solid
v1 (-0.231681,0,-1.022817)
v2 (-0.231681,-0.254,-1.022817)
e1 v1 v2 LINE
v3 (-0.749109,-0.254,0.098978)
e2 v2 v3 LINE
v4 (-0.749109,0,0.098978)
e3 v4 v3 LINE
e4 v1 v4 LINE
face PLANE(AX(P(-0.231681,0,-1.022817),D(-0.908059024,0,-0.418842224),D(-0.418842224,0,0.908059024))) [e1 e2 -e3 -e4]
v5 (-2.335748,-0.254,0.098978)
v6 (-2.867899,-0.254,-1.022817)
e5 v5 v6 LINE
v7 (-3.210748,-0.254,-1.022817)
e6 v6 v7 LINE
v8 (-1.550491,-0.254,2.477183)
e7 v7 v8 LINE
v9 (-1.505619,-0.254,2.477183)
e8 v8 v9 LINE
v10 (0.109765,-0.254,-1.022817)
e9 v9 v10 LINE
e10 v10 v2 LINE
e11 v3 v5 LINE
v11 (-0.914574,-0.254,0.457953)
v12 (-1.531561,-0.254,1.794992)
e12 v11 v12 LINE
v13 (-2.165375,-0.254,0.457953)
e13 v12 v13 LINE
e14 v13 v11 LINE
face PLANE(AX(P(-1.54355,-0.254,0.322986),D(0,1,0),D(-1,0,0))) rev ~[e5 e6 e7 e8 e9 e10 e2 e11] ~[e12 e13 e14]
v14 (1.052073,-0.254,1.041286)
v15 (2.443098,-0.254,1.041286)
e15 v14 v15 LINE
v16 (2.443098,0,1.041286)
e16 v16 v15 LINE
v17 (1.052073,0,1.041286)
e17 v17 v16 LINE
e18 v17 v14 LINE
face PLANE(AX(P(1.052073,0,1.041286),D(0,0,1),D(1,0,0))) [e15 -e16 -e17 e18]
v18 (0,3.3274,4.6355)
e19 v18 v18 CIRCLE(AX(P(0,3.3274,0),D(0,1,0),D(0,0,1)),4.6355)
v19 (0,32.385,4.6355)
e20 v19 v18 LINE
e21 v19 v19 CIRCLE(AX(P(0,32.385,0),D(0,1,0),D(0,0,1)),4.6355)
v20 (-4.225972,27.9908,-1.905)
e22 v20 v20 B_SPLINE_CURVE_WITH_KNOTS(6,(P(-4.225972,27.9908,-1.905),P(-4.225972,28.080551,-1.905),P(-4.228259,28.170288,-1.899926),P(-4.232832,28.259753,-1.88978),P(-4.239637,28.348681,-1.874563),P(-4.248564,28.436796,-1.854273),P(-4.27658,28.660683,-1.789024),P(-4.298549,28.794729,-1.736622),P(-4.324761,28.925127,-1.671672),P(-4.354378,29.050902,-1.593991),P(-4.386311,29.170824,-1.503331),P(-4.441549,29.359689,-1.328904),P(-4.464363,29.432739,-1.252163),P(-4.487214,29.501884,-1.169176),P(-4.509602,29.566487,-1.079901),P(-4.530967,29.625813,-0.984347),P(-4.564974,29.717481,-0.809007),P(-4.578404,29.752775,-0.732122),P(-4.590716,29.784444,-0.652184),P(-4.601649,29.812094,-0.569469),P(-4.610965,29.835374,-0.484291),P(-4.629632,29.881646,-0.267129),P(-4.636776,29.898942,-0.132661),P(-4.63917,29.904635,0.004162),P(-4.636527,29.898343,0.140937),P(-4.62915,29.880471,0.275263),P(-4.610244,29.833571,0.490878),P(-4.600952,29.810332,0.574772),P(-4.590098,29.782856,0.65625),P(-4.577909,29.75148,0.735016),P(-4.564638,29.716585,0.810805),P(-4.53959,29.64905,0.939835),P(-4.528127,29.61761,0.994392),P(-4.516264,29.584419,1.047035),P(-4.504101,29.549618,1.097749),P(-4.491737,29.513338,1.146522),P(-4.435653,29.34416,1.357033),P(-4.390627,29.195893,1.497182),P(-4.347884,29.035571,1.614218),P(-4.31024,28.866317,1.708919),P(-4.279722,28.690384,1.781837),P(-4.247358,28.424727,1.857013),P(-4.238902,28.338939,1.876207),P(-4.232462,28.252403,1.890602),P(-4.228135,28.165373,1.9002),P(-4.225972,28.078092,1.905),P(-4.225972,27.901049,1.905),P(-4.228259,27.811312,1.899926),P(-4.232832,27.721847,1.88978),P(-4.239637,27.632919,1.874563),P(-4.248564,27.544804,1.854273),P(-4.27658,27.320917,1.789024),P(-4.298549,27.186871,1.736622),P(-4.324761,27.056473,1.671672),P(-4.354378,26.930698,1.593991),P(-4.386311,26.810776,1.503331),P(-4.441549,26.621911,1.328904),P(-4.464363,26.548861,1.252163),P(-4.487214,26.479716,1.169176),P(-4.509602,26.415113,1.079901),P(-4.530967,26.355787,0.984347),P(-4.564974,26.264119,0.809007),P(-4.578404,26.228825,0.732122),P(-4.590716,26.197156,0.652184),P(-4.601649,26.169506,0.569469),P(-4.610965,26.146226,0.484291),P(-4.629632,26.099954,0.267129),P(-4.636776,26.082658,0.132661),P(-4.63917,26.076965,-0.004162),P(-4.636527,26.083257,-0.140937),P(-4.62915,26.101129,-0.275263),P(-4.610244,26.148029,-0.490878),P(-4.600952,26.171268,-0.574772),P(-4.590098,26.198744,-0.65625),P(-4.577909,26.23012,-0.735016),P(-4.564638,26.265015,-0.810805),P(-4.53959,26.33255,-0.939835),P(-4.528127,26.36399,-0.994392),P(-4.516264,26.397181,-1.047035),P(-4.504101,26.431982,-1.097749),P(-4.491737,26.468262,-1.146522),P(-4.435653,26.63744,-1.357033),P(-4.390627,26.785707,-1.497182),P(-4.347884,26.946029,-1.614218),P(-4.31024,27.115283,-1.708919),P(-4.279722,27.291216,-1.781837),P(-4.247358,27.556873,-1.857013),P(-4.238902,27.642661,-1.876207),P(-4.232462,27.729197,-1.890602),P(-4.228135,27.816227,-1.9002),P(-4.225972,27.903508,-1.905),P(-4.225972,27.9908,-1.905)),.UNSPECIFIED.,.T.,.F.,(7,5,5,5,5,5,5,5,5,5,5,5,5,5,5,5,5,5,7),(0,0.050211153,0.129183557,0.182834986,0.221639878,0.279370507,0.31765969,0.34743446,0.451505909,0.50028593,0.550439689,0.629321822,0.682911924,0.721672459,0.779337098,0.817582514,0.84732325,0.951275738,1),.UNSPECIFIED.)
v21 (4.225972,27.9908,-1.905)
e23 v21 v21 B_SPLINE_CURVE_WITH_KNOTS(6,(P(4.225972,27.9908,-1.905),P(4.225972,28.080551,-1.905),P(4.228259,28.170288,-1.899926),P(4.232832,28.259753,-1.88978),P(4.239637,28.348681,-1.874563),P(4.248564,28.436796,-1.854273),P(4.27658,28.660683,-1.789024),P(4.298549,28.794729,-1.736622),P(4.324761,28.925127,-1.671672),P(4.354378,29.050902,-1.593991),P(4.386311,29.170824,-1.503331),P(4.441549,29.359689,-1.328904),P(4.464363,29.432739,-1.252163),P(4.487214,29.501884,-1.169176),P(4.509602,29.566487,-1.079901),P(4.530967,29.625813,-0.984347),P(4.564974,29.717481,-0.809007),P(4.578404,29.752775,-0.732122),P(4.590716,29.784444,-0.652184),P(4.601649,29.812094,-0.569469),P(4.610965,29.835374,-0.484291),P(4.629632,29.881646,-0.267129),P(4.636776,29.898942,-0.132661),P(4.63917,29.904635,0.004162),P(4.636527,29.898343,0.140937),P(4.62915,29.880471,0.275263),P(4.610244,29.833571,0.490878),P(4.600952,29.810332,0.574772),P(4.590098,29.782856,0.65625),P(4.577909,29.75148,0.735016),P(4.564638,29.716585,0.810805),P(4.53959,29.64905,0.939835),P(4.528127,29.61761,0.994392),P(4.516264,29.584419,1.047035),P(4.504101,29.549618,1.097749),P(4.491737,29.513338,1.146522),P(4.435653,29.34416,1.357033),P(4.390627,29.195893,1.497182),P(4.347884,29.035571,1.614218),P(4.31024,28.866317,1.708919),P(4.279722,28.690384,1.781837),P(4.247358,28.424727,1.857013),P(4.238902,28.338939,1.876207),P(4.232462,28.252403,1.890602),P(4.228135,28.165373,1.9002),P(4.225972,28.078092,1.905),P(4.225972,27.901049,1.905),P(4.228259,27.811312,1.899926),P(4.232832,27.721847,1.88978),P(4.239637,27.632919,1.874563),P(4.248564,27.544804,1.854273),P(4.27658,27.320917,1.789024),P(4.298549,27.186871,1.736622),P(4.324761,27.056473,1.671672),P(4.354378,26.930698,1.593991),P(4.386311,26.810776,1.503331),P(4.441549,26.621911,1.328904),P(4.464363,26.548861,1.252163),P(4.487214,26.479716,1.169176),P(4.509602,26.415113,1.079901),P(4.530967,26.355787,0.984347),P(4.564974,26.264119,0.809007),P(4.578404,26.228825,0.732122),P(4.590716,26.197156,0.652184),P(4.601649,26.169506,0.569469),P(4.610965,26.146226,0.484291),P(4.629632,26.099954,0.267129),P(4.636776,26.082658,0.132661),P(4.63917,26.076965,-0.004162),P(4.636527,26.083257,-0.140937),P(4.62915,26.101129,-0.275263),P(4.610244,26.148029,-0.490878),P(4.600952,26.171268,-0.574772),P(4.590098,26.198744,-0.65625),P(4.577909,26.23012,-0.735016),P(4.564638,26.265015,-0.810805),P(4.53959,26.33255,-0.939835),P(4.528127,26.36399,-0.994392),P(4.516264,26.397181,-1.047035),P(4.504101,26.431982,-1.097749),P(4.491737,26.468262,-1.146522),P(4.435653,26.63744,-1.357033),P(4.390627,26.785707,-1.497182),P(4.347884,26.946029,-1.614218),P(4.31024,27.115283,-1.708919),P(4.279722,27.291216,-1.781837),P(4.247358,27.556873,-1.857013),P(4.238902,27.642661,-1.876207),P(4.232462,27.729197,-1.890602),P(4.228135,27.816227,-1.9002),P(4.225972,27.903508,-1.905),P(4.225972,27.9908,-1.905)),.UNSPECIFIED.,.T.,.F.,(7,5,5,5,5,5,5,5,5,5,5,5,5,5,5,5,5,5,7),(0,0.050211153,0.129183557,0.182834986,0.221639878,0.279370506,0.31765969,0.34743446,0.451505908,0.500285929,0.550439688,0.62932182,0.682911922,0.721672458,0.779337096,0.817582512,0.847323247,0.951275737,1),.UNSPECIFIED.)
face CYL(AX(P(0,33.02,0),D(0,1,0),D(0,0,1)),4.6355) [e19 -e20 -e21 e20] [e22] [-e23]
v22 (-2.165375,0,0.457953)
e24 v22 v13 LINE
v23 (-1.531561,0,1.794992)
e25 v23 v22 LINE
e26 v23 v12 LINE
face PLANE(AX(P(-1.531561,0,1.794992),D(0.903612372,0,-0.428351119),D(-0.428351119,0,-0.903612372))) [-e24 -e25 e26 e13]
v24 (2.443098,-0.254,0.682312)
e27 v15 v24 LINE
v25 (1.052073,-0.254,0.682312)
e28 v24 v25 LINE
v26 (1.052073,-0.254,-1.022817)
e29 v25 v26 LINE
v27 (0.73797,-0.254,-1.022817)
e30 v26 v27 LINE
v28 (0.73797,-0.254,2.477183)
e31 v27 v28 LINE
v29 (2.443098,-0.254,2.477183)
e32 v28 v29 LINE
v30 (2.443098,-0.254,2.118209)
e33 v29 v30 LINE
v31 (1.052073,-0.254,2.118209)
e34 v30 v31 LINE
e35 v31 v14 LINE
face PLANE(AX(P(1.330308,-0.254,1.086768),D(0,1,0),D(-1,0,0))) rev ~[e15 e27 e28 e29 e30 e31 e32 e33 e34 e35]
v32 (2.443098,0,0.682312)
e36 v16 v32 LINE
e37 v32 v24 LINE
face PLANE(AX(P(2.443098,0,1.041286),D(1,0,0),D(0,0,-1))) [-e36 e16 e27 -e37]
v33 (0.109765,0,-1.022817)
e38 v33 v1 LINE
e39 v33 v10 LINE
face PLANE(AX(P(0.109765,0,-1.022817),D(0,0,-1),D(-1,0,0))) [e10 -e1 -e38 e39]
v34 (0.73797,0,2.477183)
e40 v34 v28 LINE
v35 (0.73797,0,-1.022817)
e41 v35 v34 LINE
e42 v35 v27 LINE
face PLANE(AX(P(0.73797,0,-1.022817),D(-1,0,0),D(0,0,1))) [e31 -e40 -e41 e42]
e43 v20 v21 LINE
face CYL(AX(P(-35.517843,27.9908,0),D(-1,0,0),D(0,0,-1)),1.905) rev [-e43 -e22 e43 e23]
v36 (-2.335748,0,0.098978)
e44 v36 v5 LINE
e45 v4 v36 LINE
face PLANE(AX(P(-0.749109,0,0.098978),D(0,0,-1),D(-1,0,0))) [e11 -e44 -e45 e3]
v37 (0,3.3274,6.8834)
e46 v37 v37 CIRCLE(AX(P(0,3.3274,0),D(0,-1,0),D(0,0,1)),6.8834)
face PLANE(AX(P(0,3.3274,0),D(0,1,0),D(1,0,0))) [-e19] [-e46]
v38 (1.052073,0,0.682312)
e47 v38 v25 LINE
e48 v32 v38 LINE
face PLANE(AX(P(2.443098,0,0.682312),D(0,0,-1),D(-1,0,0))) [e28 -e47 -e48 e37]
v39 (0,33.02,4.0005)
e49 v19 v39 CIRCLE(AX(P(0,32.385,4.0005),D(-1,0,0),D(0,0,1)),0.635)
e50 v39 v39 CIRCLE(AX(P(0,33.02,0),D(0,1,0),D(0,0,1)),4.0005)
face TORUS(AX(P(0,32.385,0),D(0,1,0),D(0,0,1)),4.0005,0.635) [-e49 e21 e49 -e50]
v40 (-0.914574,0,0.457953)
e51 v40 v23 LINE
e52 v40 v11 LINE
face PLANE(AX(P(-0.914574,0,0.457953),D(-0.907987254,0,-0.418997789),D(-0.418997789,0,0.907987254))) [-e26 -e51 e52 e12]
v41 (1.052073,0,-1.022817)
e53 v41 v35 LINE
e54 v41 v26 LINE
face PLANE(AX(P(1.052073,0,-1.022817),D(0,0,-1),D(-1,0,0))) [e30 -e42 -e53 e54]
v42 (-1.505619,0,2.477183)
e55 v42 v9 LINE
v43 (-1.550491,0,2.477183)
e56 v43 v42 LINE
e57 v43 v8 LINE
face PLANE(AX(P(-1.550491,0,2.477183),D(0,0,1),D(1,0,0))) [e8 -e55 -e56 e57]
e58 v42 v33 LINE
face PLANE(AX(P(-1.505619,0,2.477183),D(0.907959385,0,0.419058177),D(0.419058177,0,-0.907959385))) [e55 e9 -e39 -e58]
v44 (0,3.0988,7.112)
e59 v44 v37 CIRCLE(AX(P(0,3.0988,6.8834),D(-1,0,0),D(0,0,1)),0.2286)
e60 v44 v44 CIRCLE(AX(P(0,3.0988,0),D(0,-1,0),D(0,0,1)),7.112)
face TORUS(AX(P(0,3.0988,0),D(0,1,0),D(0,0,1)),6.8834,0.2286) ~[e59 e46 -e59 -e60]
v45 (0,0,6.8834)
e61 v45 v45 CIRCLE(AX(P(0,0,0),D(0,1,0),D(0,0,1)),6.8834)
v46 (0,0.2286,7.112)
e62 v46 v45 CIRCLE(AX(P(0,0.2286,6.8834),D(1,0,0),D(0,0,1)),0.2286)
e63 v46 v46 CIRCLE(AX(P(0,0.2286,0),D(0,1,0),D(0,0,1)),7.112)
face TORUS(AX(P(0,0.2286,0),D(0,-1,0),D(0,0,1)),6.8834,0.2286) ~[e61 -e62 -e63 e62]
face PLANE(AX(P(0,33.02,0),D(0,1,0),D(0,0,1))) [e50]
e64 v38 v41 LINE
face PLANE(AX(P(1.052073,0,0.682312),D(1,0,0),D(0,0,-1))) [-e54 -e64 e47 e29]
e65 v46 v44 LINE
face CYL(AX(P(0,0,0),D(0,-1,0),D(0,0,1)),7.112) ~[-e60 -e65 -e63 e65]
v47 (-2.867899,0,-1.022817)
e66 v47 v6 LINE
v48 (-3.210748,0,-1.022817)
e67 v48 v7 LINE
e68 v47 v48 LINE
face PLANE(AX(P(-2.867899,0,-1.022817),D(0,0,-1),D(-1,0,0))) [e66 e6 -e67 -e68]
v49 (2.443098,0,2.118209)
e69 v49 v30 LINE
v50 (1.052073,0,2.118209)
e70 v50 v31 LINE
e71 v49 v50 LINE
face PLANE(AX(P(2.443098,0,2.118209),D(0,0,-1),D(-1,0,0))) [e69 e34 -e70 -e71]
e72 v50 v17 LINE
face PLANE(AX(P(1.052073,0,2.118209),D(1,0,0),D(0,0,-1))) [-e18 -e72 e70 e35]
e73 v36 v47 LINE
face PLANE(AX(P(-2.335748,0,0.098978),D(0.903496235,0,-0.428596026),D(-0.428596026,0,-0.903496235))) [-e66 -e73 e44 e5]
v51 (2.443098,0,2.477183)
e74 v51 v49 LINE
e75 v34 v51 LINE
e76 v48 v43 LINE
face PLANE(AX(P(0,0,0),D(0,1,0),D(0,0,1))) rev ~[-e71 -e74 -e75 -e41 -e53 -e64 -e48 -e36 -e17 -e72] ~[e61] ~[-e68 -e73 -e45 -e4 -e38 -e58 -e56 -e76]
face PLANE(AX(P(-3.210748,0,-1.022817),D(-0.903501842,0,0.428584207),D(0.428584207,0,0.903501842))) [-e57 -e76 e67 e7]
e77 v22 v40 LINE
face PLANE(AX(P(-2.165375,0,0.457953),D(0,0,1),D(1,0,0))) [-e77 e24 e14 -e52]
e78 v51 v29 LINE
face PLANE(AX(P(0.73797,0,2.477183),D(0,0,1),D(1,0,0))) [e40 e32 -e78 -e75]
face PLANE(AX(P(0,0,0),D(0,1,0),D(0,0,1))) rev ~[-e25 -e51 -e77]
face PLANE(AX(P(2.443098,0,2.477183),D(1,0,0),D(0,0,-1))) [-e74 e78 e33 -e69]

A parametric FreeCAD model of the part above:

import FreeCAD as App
import Part
import Sketcher
from FreeCAD import Vector
Q = App.Units.Quantity


def edges_at(feature, points):
    """Names of the edges that pass closest to the given points."""
    edges = feature.Shape.Edges
    near = lambda p: min(range(len(edges)), key=lambda i: edges[i].distToShape(Part.Vertex(*p))[0])
    return sorted({f"Edge{near(p) + 1}" for p in points})


def add_polygon(sketch, points):
    """Adds a closed chain of lines whose ends are joined by coincident constraints."""
    first, n = sketch.GeometryCount, len(points)
    for a, b in zip(points, points[1:] + points[:1]):
        sketch.addGeometry(Part.LineSegment(App.Vector(*a, 0), App.Vector(*b, 0)), False)
    for i in range(n):
        sketch.addConstraint(Sketcher.Constraint("Coincident", first + i, 2, first + (i + 1) % n, 1))

doc = App.newDocument("Part")
body = doc.addObject("PartDesign::Body", "Body")

sketch1 = body.newObject("Sketcher::SketchObject", "Sketch")
sketch1.AttachmentSupport = (doc.getObject("XZ_Plane"), [""])
sketch1.MapMode = "FlatFace"
sketch1.addGeometry(Part.Circle(Vector(0, 0, 0), Vector(0, 0, 1), 7.112), False)
sketch1.addConstraint([
    Sketcher.Constraint("Coincident", 0, 3, -1, 1),
    Sketcher.Constraint("Diameter", 0, Q("0.56 in")),
])
pad1 = body.newObject("PartDesign::Pad", "Pad")
pad1.Profile = sketch1
pad1.Length = Q("1.3 in")
pad1.Reversed = True

sketch2 = body.newObject("Sketcher::SketchObject", "Sketch001")
sketch2.AttachmentSupport = (doc.getObject("XZ_Plane"), [""])
sketch2.MapMode = "FlatFace"
sketch2.AttachmentOffset = App.Placement(Vector(0, 0, -1.3 * 25.4), App.Rotation())
add_polygon(sketch2, [(-11.978, -11.978), (-11.978, 11.978), (11.978, 11.978), (11.978, -11.978)])
sketch2.addGeometry(Part.Circle(Vector(0, 0, 0), Vector(0, 0, 1), 4.6355), False)
sketch2.addConstraint([
    Sketcher.Constraint("Vertical", 0),
    Sketcher.Constraint("Horizontal", 1),
    Sketcher.Constraint("Vertical", 2),
    Sketcher.Constraint("Horizontal", 3),
    Sketcher.Constraint("Coincident", 4, 3, -1, 1),
    Sketcher.Constraint("Symmetric", 0, 2, 2, 2, -1, 1),
    Sketcher.Constraint("Equal", 3, 0),
    Sketcher.Constraint("Diameter", 4, Q("0.365 in")),
    Sketcher.Constraint("DistanceX", 1, 1, 1, 2, 23.956),
])
pocket1 = body.newObject("PartDesign::Pocket", "Pocket")
pocket1.Profile = sketch2
pocket1.Length = Q("1.169 in")
pocket1.Reversed = True

sketch3 = body.newObject("Sketcher::SketchObject", "Sketch002")
sketch3.AttachmentSupport = (doc.getObject("YZ_Plane"), [""])
sketch3.MapMode = "FlatFace"
sketch3.addGeometry(Part.Circle(Vector(27.9908, 0, 0), Vector(0, 0, 1), 1.905), False)
sketch3.addConstraint([
    Sketcher.Constraint("PointOnObject", 0, 3, -1),
    Sketcher.Constraint("Diameter", 0, Q("0.15 in")),
    Sketcher.Constraint("DistanceX", -1, 1, 0, 3, Q("1.102 in")),
])
pocket2 = body.newObject("PartDesign::Pocket", "Pocket001")
pocket2.Profile = sketch3
pocket2.Type = "ThroughAll"
pocket2.Midplane = True

sketch4 = body.newObject("Sketcher::SketchObject", "Sketch003")
sketch4.AttachmentSupport = (doc.getObject("XZ_Plane"), [""])
sketch4.MapMode = "FlatFace"
add_polygon(sketch4, [(0.109765, -1.022817), (-1.505619, 2.477183), (-1.550491, 2.477183), (-3.210748, -1.022817), (-2.867899, -1.022817), (-2.335748, 0.098978), (-0.749109, 0.098978), (-0.231681, -1.022817)])
add_polygon(sketch4, [(-1.531561, 1.794992), (-0.914574, 0.457953), (-2.165375, 0.457953)])
add_polygon(sketch4, [(2.443098, 2.477183), (0.73797, 2.477183), (0.73797, -1.022817), (1.052073, -1.022817), (1.052073, 0.682312), (2.443098, 0.682312), (2.443098, 1.041286), (1.052073, 1.041286), (1.052073, 2.118209), (2.443098, 2.118209)])
sketch4.addConstraint([
    Sketcher.Constraint("Horizontal", 1),
    Sketcher.Constraint("Horizontal", 3),
    Sketcher.Constraint("Horizontal", 5),
    Sketcher.Constraint("Horizontal", 7),
    Sketcher.Constraint("Horizontal", 9),
    Sketcher.Constraint("Horizontal", 11),
    Sketcher.Constraint("Vertical", 12),
    Sketcher.Constraint("Horizontal", 13),
    Sketcher.Constraint("Vertical", 14),
    Sketcher.Constraint("Horizontal", 15),
    Sketcher.Constraint("Vertical", 16),
    Sketcher.Constraint("Horizontal", 17),
    Sketcher.Constraint("Vertical", 18),
    Sketcher.Constraint("Horizontal", 19),
    Sketcher.Constraint("Vertical", 20),
    Sketcher.Constraint("Horizontal", 3, 2, 6, 2),
    Sketcher.Constraint("Horizontal", 1, 2, 11, 2),
    Sketcher.Constraint("Horizontal", 7, 2, 12, 2),
    Sketcher.Constraint("Vertical", 14, 2, 17, 2),
    Sketcher.Constraint("Vertical", 16, 2, 19, 2),
    Sketcher.Constraint("Equal", 11, 14),
    Sketcher.Constraint("Equal", 16, 20),
    Sketcher.Constraint("DistanceX", 9, 2, 9, 1, 1.250801),
    Sketcher.Constraint("DistanceY", 12, 2, 12, 1, 3.5),
    Sketcher.Constraint("DistanceX", 1, 2, 1, 1, 0.044872),
    Sketcher.Constraint("DistanceX", 3, 1, 3, 2, 0.342849),
    Sketcher.Constraint("DistanceX", 5, 1, 5, 2, 1.586639),
    Sketcher.Constraint("DistanceX", 11, 2, 11, 1, 1.705128),
    Sketcher.Constraint("DistanceX", 3, 2, -1, 1, 2.867899),
    Sketcher.Constraint("DistanceX", -1, 1, 15, 2, 2.443098),
    Sketcher.Constraint("DistanceX", 2, 2, 4, 2, 0.875),
    Sketcher.Constraint("Distance", 8, 1.472531),
    Sketcher.Constraint("Distance", 10, 1.47966),
    Sketcher.Constraint("DistanceX", 7, 1, 7, 2, 0.341446),
    Sketcher.Constraint("DistanceX", 13, 1, 13, 2, 0.314103),
    Sketcher.Constraint("DistanceY", 16, 1, 16, 2, 0.358974),
    Sketcher.Constraint("DistanceX", 0, 2, -1, 1, 1.505619),
    Sketcher.Constraint("DistanceY", -1, 1, 4, 2, 0.098978),
    Sketcher.Constraint("DistanceX", 6, 2, -1, 1, 0.231681),
    Sketcher.Constraint("DistanceX", 10, 2, -1, 1, 1.531561),
    Sketcher.Constraint("DistanceY", -1, 1, 10, 2, 1.794992),
    Sketcher.Constraint("DistanceY", -1, 1, 14, 2, 0.682312),
])
pad2 = body.newObject("PartDesign::Pad", "Pad001")
pad2.Profile = sketch4
pad2.Length = Q("0.01 in")
doc.recompute()

fillet = body.newObject("PartDesign::Fillet", "Fillet")
fillet.Base = (pad2, edges_at(pad2, [(0, 0, -7.112), (0, 3.327, -7.112)]))
fillet.Radius = Q("0.009 in")
doc.recompute()

fillet2 = body.newObject("PartDesign::Fillet", "Fillet001")
fillet2.Base = (fillet, edges_at(fillet, [(0, 33.02, -4.636)]))
fillet2.Radius = Q("0.025 in")

doc.recompute()
